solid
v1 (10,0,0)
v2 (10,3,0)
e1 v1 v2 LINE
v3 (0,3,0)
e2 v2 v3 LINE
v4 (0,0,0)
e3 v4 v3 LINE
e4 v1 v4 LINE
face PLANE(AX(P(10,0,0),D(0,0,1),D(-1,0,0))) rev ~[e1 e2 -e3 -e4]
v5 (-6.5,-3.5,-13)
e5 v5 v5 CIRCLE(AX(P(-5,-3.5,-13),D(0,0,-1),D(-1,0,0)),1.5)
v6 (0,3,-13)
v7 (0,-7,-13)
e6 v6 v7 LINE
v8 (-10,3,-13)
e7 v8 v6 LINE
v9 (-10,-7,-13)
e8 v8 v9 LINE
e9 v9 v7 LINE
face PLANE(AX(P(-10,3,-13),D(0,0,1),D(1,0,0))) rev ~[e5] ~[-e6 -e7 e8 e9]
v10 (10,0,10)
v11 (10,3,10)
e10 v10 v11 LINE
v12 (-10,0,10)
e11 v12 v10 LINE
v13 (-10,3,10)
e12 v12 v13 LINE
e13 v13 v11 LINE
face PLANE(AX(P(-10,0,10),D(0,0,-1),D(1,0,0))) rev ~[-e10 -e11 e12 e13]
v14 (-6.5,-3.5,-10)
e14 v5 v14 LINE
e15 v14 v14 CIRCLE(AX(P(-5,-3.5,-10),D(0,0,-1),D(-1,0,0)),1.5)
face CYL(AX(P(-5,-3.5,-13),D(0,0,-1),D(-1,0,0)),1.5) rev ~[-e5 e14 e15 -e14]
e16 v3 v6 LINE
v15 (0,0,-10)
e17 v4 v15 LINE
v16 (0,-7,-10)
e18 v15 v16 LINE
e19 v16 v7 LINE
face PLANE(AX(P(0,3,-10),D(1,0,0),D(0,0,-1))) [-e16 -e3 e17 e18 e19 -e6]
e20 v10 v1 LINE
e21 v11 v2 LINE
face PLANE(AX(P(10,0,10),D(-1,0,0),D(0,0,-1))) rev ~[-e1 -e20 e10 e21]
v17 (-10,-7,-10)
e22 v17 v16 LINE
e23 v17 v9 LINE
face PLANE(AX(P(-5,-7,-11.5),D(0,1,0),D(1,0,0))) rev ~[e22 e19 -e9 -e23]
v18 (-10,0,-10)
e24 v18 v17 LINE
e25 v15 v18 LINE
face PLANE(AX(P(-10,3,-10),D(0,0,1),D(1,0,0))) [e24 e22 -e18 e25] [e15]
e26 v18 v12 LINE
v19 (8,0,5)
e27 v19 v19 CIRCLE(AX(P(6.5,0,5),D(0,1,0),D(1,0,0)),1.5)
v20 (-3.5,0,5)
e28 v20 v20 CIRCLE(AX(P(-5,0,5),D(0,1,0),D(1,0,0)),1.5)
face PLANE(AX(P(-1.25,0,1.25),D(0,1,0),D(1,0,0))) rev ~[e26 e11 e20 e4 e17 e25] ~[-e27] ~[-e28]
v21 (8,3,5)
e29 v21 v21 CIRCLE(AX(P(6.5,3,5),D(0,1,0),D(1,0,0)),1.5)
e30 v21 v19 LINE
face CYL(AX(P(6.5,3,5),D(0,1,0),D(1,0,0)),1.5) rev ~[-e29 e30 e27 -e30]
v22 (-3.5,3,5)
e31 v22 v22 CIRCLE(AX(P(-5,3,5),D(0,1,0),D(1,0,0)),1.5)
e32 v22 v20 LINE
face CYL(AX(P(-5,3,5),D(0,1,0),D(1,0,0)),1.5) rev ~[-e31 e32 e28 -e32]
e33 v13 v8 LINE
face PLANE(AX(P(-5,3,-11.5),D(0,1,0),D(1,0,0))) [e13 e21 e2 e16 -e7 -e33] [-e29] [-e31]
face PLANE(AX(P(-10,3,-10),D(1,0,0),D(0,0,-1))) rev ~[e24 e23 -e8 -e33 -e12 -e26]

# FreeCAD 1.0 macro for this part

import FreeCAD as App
import Part
import Sketcher


def add_polygon(sketch, points):
    """Adds a closed chain of lines whose ends are joined by coincident constraints."""
    first, n = sketch.GeometryCount, len(points)
    for a, b in zip(points, points[1:] + points[:1]):
        sketch.addGeometry(Part.LineSegment(App.Vector(*a, 0), App.Vector(*b, 0)), False)
    for i in range(n):
        sketch.addConstraint(Sketcher.Constraint("Coincident", first + i, 2, first + (i + 1) % n, 1))

doc = App.newDocument("Part")
body = doc.addObject("PartDesign::Body", "Body")

# Sketch on XZ plane
sketch1 = doc.addObject("Sketcher::SketchObject", "Sketch")
body.addObject(sketch1)
sketch1.AttachmentSupport = (doc.XZ_Plane, [""])
sketch1.MapMode = "FlatFace"
add_polygon(sketch1, [(0, 0), (0, -10), (-10, -10), (-10, 10), (10, 10), (10, 0)])  # lines 0-5
sketch1.addConstraint([
    Sketcher.Constraint("Vertical", 0),
    Sketcher.Constraint("Horizontal", 1),
    Sketcher.Constraint("Vertical", 2),
    Sketcher.Constraint("Horizontal", 3),
    Sketcher.Constraint("Vertical", 4),
    Sketcher.Constraint("Horizontal", 5),
    Sketcher.Constraint("Coincident", 5, 2, -1, 1),
    Sketcher.Constraint("Symmetric", 1, 2, 3, 2, -1, 1),
    Sketcher.Constraint("Equal", 5, 0),
    Sketcher.Constraint("DistanceX", 1, 2, 1, 1, 10.0),
])
pad1 = doc.addObject("PartDesign::Pad", "Pad")
body.addObject(pad1)
pad1.Profile = sketch1
pad1.Length = 3
pad1.Reversed = True

# Sketch on XZ plane
sketch2 = doc.addObject("Sketcher::SketchObject", "Sketch001")
body.addObject(sketch2)
sketch2.AttachmentSupport = (doc.XZ_Plane, [""])
sketch2.MapMode = "FlatFace"
sketch2.AttachmentOffset = App.Placement(App.Vector(0, 0, -3), App.Rotation())
add_polygon(sketch2, [(-10, -13), (-10, -10), (0, -10), (0, -13)])  # lines 0-3
sketch2.addConstraint([
    Sketcher.Constraint("Vertical", 0),
    Sketcher.Constraint("Horizontal", 1),
    Sketcher.Constraint("Vertical", 2),
    Sketcher.Constraint("Horizontal", 3),
    Sketcher.Constraint("PointOnObject", 1, 2, -2),
    Sketcher.Constraint("DistanceX", 1, 1, 1, 2, 10.0),
    Sketcher.Constraint("DistanceY", 0, 1, 0, 2, 3.0),
    Sketcher.Constraint("DistanceY", 0, 2, -1, 1, 10.0),
])
pad2 = doc.addObject("PartDesign::Pad", "Pad001")
body.addObject(pad2)
pad2.Profile = sketch2
pad2.Length = 10

# Sketch on XZ plane
sketch3 = doc.addObject("Sketcher::SketchObject", "Sketch002")
body.addObject(sketch3)
sketch3.AttachmentSupport = (doc.XZ_Plane, [""])
sketch3.MapMode = "FlatFace"
sketch3.AttachmentOffset = App.Placement(App.Vector(0, 0, -3), App.Rotation())
sketch3.addGeometry(Part.Circle(App.Vector(-5, 5, 0), App.Vector(0, 0, 1), 1.5), False)
sketch3.addConstraint([
    Sketcher.Constraint("Diameter", 0, 3.0),
    Sketcher.Constraint("DistanceX", 0, 3, -1, 1, 5.0),
    Sketcher.Constraint("DistanceY", -1, 1, 0, 3, 5.0),
])
pocket1 = doc.addObject("PartDesign::Pocket", "Pocket")
body.addObject(pocket1)
pocket1.Profile = sketch3
pocket1.Type = "UpToFirst"
pocket1.Reversed = True

# Sketch on XZ plane
sketch4 = doc.addObject("Sketcher::SketchObject", "Sketch003")
body.addObject(sketch4)
sketch4.AttachmentSupport = (doc.XZ_Plane, [""])
sketch4.MapMode = "FlatFace"
sketch4.AttachmentOffset = App.Placement(App.Vector(0, 0, -3), App.Rotation())
sketch4.addGeometry(Part.Circle(App.Vector(6.5, 5, 0), App.Vector(0, 0, 1), 1.5), False)
sketch4.addConstraint([
    Sketcher.Constraint("Diameter", 0, 3.0),
    Sketcher.Constraint("DistanceY", -1, 1, 0, 3, 5.0),
    Sketcher.Constraint("DistanceX", -1, 1, 0, 3, 6.5),
])
pocket2 = doc.addObject("PartDesign::Pocket", "Pocket001")
body.addObject(pocket2)
pocket2.Profile = sketch4
pocket2.Type = "UpToFirst"
pocket2.Reversed = True

# Sketch on XY plane
sketch5 = doc.addObject("Sketcher::SketchObject", "Sketch004")
body.addObject(sketch5)
sketch5.AttachmentSupport = (doc.XY_Plane, [""])
sketch5.MapMode = "FlatFace"
sketch5.AttachmentOffset = App.Placement(App.Vector(0, 0, -13), App.Rotation())
sketch5.addGeometry(Part.Circle(App.Vector(-5, -3.5, 0), App.Vector(0, 0, 1), 1.5), False)
sketch5.addConstraint([
    Sketcher.Constraint("Diameter", 0, 3.0),
    Sketcher.Constraint("DistanceX", 0, 3, -1, 1, 5.0),
    Sketcher.Constraint("DistanceY", 0, 3, -1, 1, 3.5),
])
pocket3 = doc.addObject("PartDesign::Pocket", "Pocket002")
body.addObject(pocket3)
pocket3.Profile = sketch5
pocket3.Type = "UpToFirst"
pocket3.Reversed = True

doc.recompute()
